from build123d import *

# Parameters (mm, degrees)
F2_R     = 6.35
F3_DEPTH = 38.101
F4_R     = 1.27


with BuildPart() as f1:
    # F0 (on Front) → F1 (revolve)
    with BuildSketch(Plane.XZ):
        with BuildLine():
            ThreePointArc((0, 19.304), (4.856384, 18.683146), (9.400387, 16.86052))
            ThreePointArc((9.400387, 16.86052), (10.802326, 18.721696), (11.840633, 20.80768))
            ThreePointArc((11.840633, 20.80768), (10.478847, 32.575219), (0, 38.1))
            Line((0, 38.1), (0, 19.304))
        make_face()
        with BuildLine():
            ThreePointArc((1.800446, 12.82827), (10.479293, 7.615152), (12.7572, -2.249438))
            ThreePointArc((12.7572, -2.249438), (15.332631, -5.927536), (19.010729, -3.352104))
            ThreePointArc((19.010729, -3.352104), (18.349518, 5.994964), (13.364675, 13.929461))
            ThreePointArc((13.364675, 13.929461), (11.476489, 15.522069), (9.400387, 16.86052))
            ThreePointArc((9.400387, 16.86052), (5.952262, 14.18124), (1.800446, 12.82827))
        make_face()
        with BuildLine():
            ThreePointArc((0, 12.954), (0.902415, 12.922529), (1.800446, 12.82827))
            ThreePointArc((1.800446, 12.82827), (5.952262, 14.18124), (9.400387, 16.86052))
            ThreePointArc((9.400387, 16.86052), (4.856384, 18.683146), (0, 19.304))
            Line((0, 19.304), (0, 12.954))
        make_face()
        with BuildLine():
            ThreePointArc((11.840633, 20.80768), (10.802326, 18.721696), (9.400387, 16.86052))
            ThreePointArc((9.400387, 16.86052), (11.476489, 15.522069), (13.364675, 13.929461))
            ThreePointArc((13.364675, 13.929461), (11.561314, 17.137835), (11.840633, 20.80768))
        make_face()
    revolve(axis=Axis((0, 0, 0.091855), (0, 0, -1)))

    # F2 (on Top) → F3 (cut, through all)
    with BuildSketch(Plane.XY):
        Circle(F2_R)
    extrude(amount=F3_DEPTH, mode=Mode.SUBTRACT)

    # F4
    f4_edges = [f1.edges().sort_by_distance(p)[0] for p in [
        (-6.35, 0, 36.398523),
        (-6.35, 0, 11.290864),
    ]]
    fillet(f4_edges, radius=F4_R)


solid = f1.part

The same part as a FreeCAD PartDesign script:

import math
import FreeCAD as App
import Part
import Sketcher
Q = App.Units.Quantity


def edges_at(feature, points):
    """Names of the edges that pass closest to the given points."""
    edges = feature.Shape.Edges
    near = lambda p: min(range(len(edges)), key=lambda i: edges[i].distToShape(Part.Vertex(*p))[0])
    return sorted({f"Edge{near(p) + 1}" for p in points})

doc = App.newDocument("Part")
body = doc.addObject("PartDesign::Body", "Body")

sketch1 = doc.addObject("Sketcher::SketchObject", "Sketch")
body.addObject(sketch1)
sketch1.AttachmentSupport = (doc.XZ_Plane, [""])
sketch1.MapMode = "FlatFace"
sketch1.addGeometry([
    Part.ArcOfCircle(Part.Circle(App.Vector(0, 25.4, 0), App.Vector(0, 0, 1), 12.7), math.radians(-21.198493), math.radians(90.000001)),
    Part.LineSegment(App.Vector(0, 38.1, 0), App.Vector(0, 12.954, 0)),
    Part.ArcOfCircle(Part.Circle(App.Vector(-0.000008, -0.000125, 0), App.Vector(0, 0, 1), 12.954125), math.radians(82.01077), math.radians(89.999963)),
    Part.ArcOfCircle(Part.Circle(App.Vector(0, 0, 0), App.Vector(0, 0, 1), 12.954), math.radians(-9.999998), math.radians(82.010731)),
    Part.ArcOfCircle(Part.Circle(App.Vector(15.883964, -2.800772, 0), App.Vector(0, 0, 1), 3.175), math.radians(169.999989), math.radians(350.000009)),
    Part.ArcOfCircle(Part.Circle(App.Vector(-0.000003, -0.000001, 0), App.Vector(0, 0, 1), 19.304003), math.radians(-9.999994), math.radians(46.185423)),
    Part.ArcOfCircle(Part.Circle(App.Vector(17.760952, 18.511521, 0), App.Vector(0, 0, 1), 6.350002), math.radians(158.801524), math.radians(226.185415)),
], False)
sketch1.addConstraint([
    Sketcher.Constraint("Coincident", 0, 2, 1, 1),
    Sketcher.Constraint("Coincident", 1, 2, 2, 2),
    Sketcher.Constraint("Coincident", 2, 1, 3, 2),
    Sketcher.Constraint("Coincident", 3, 1, 4, 1),
    Sketcher.Constraint("Coincident", 4, 2, 5, 1),
    Sketcher.Constraint("Coincident", 5, 2, 6, 2),
    Sketcher.Constraint("Coincident", 6, 1, 0, 1),
    Sketcher.Constraint("Vertical", 1),
    Sketcher.Constraint("Coincident", 3, 3, -1, 1),
    Sketcher.Constraint("Coincident", 5, 3, -1, 1),
    Sketcher.Constraint("PointOnObject", 0, 3, -2),
    Sketcher.Constraint("PointOnObject", 0, 2, -2),
    Sketcher.Constraint("Radius", 0, Q("0.5 in")),
    Sketcher.Constraint("Radius", 3, Q("0.51 in")),
    Sketcher.Constraint("Radius", 5, Q("0.7600001 in")),
    Sketcher.Constraint("Radius", 6, Q("0.2500001 in")),
    Sketcher.Constraint("DistanceY", -1, 1, 0, 3, Q("1 in")),
    Sketcher.Constraint("DistanceY", 1, 2, 1, 1, Q("0.99 in")),
    Sketcher.Constraint("DistanceY", -1, 1, 6, 1, Q("0.8192 in")),
    Sketcher.Constraint("Radius", 2, 12.954125),
    Sketcher.Constraint("DistanceX", -1, 1, 3, 1, 12.7572),
    Sketcher.Constraint("DistanceY", 3, 1, 5, 2, 16.178899),
    Sketcher.Constraint("DistanceY", 4, 3, -1, 1, 2.800772),
    Sketcher.Constraint("DistanceY", -1, 1, 2, 1, 12.82827),
    Sketcher.Constraint("DistanceX", -1, 1, 4, 2, 19.010729),
])
revolution = doc.addObject("PartDesign::Revolution", "Revolution")
body.addObject(revolution)
revolution.Profile = sketch1
revolution.ReferenceAxis = (sketch1, ["V_Axis"])
revolution.Angle = 360

sketch2 = doc.addObject("Sketcher::SketchObject", "Sketch001")
body.addObject(sketch2)
sketch2.AttachmentSupport = (doc.XY_Plane, [""])
sketch2.MapMode = "FlatFace"
sketch2.addGeometry(Part.Circle(App.Vector(0, 0, 0), App.Vector(0, 0, 1), 6), False)
sketch2.addConstraint([
    Sketcher.Constraint("Coincident", 0, 3, -1, 1),
    Sketcher.Constraint("Diameter", 0, Q("0.5 in")),
])
pocket1 = doc.addObject("PartDesign::Pocket", "Pocket")
body.addObject(pocket1)
pocket1.Profile = sketch2
pocket1.Type = "ThroughAll"
pocket1.Reversed = True
doc.recompute()

fillet = doc.addObject("PartDesign::Fillet", "Fillet")
body.addObject(fillet)
fillet.Base = (pocket1, edges_at(pocket1, [(-6.35, 0, 36.399), (-6.35, 0, 11.291)]))
fillet.Radius = Q("0.05 in")

doc.recompute()
